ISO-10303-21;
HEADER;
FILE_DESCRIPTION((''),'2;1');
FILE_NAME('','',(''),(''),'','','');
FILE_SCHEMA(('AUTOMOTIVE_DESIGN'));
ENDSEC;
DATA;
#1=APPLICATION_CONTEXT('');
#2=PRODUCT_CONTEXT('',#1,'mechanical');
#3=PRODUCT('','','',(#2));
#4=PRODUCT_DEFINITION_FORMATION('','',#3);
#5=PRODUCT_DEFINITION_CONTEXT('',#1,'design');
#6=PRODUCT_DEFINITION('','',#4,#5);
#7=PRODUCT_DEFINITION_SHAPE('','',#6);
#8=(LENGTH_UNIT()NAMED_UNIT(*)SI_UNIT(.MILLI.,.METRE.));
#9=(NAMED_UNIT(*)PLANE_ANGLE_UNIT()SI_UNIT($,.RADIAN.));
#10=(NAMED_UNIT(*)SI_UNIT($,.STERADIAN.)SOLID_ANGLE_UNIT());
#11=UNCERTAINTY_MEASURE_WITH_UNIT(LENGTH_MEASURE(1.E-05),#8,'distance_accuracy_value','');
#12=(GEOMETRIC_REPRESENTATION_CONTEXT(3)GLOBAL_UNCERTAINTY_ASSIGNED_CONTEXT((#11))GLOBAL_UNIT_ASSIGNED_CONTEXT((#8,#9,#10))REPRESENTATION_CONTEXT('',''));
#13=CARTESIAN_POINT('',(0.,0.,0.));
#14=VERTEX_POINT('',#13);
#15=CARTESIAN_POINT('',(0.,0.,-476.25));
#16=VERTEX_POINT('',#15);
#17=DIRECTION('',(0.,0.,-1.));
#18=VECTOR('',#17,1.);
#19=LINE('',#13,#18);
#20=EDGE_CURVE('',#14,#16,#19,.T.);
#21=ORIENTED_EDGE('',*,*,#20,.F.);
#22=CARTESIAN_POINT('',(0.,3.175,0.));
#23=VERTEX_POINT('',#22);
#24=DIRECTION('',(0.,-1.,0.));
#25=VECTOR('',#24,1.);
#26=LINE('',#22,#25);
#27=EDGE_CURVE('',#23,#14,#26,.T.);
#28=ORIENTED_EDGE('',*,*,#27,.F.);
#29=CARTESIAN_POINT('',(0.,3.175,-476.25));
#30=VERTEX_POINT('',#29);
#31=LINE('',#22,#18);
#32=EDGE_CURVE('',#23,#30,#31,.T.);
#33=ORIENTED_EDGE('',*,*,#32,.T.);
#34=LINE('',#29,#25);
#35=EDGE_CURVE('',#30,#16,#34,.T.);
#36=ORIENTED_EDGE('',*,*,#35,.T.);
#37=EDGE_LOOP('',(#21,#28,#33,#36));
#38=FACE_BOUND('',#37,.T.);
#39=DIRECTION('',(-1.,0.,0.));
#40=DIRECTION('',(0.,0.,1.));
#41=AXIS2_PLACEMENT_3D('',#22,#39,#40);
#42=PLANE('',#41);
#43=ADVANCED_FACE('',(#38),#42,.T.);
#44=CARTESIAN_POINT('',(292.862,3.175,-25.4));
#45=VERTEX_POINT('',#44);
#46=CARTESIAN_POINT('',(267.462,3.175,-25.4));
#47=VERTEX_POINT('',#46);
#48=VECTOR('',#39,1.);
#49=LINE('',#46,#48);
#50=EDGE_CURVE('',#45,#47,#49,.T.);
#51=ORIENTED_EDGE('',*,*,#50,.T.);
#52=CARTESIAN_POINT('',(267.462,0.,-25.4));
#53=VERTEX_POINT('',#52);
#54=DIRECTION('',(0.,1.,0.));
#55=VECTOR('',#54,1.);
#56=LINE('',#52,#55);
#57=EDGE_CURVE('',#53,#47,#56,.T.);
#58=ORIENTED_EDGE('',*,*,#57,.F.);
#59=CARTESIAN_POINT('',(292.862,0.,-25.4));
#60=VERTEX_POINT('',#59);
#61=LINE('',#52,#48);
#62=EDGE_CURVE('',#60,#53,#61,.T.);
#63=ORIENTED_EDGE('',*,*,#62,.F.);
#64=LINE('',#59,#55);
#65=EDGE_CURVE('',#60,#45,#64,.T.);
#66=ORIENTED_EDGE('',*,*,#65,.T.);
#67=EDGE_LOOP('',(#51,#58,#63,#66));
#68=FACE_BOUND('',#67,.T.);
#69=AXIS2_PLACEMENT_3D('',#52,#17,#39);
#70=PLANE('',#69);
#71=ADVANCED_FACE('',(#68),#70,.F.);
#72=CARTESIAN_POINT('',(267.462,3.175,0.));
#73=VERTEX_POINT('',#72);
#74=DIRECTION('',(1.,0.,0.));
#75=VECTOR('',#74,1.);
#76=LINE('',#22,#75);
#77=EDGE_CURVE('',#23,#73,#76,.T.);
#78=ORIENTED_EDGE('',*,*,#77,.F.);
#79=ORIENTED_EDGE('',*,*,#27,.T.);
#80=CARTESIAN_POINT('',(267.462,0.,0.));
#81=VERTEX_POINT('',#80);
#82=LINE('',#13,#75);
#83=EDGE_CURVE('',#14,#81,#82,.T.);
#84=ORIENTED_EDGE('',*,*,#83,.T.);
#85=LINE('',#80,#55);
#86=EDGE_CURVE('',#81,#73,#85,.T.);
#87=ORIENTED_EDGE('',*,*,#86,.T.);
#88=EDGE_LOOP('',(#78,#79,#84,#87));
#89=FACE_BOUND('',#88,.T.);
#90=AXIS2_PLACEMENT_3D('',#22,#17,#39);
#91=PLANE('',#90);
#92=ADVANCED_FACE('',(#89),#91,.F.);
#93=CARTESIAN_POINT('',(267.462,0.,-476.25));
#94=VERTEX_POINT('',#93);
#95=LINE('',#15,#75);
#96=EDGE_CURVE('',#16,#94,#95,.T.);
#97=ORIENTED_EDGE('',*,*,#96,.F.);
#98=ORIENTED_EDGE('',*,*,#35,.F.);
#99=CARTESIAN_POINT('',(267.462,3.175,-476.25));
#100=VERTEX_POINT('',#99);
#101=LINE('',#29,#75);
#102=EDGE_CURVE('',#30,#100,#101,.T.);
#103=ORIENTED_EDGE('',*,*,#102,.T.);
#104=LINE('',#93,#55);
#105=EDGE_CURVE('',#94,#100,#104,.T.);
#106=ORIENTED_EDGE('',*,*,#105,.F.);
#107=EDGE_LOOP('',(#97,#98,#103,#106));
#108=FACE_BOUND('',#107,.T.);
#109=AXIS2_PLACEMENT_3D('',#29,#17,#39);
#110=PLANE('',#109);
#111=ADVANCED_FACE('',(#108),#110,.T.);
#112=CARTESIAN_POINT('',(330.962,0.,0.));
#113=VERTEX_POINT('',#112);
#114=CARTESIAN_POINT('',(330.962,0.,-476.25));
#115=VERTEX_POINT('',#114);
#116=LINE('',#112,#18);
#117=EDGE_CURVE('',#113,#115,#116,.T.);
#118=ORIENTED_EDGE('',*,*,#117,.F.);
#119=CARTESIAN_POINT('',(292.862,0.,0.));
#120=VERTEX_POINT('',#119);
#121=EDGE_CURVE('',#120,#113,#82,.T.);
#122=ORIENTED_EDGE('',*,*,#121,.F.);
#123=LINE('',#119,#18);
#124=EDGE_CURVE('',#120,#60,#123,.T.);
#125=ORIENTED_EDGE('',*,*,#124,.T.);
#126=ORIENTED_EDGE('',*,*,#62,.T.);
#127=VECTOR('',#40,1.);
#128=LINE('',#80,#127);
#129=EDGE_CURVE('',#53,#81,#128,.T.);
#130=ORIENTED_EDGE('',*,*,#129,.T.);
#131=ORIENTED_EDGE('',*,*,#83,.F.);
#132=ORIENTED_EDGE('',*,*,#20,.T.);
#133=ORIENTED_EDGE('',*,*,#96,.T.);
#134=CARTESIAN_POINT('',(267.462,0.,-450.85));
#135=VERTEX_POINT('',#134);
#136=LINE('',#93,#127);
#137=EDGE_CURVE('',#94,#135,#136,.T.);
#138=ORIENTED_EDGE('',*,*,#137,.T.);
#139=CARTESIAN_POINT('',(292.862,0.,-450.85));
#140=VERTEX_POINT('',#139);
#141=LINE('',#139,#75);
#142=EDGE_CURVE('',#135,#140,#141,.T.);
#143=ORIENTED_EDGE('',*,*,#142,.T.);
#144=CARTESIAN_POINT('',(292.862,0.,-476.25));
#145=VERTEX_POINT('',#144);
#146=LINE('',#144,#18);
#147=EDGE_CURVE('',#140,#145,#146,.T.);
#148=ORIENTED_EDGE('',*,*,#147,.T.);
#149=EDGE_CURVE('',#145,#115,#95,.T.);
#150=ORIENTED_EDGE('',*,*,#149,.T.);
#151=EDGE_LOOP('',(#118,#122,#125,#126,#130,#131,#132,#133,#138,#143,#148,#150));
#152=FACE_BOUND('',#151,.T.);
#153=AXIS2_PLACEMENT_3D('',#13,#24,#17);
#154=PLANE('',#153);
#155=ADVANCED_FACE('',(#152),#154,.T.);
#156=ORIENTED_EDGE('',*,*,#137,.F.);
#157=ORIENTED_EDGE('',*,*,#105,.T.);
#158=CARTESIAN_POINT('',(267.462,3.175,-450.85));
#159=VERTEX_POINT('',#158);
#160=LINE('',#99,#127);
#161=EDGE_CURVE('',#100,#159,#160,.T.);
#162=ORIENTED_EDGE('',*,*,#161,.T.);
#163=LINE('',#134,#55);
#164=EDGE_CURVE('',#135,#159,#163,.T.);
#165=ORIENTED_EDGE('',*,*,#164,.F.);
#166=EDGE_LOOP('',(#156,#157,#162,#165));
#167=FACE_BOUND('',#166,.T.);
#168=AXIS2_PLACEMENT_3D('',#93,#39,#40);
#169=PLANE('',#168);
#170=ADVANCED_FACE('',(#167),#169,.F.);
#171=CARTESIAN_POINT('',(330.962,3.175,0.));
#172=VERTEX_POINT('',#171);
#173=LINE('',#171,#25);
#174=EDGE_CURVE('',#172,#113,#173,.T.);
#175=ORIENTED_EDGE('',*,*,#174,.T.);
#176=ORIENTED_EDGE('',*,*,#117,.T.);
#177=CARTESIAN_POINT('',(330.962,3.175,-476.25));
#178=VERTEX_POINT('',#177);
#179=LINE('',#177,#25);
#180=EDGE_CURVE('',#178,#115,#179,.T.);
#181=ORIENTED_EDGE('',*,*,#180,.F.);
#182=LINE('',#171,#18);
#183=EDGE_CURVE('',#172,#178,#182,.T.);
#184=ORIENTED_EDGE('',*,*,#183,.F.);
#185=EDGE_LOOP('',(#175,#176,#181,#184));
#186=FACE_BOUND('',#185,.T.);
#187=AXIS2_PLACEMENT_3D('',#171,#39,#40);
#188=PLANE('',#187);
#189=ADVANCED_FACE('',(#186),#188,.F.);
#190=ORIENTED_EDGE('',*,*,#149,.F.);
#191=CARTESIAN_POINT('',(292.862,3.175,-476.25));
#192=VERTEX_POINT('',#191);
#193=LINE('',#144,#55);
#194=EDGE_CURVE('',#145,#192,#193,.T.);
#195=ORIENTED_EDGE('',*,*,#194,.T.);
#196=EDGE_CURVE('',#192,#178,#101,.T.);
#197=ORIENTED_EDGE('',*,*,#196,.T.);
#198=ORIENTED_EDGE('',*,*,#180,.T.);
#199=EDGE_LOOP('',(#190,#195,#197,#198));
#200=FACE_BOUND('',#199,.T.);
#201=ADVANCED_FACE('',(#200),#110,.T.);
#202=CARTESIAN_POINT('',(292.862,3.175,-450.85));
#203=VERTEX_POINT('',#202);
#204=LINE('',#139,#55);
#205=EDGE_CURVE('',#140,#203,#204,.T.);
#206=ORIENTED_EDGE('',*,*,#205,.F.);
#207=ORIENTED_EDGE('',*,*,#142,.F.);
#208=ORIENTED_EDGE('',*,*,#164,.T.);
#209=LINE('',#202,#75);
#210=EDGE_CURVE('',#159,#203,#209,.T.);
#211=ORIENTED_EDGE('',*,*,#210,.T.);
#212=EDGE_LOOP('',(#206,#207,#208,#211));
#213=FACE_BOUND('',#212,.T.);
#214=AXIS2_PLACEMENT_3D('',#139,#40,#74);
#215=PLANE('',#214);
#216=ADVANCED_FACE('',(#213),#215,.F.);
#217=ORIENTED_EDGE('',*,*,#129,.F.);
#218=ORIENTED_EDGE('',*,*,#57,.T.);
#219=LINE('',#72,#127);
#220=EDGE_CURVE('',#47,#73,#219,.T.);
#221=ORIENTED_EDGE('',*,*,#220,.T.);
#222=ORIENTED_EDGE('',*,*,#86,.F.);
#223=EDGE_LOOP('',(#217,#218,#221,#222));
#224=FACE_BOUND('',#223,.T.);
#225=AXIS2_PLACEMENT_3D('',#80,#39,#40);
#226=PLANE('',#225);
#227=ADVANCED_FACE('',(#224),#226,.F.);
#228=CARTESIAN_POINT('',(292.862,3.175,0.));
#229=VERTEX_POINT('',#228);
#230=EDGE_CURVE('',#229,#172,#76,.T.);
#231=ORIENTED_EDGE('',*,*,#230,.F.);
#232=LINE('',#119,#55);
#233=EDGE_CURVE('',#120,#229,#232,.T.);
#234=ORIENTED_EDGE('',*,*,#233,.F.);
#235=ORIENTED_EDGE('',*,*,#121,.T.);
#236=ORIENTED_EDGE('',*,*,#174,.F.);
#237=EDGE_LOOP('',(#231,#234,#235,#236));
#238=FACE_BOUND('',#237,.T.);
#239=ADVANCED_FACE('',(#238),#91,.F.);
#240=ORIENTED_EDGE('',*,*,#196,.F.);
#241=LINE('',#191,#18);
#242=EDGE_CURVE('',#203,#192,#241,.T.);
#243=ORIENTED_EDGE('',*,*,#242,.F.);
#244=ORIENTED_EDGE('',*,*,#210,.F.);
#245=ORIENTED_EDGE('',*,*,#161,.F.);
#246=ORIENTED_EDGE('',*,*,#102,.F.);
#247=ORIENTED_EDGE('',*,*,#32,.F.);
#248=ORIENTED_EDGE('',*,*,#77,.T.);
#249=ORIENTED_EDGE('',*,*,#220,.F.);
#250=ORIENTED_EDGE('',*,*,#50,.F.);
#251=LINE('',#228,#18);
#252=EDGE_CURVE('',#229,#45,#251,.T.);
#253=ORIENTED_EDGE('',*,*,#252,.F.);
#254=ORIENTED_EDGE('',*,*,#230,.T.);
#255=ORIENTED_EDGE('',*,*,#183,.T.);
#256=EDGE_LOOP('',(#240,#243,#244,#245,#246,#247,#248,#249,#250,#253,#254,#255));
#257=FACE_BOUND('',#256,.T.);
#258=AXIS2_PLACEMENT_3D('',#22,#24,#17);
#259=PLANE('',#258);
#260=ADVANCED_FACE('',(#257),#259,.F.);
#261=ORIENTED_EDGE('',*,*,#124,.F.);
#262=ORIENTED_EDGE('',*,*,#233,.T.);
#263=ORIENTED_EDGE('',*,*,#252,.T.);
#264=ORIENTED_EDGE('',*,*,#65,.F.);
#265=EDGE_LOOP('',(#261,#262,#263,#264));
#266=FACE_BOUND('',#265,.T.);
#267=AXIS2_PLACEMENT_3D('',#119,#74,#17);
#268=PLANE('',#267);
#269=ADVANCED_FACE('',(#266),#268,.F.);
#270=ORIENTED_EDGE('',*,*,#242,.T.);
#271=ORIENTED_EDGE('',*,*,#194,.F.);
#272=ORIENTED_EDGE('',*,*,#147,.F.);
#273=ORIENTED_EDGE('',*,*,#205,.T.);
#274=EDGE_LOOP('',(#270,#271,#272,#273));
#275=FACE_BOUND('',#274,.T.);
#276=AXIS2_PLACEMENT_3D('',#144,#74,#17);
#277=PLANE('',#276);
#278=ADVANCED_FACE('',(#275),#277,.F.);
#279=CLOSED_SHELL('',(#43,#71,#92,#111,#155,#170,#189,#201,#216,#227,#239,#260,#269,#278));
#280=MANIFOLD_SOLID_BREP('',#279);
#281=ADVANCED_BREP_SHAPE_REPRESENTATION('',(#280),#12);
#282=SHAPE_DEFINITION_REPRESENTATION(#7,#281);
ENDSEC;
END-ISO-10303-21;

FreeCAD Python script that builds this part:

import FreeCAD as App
import Part
import Sketcher

V = App.Vector
Q = App.Units.Quantity


def add_polygon(sketch, points):
    """Adds a closed chain of lines whose ends are joined by coincident constraints."""
    first, n = sketch.GeometryCount, len(points)
    for a, b in zip(points, points[1:] + points[:1]):
        sketch.addGeometry(Part.LineSegment(App.Vector(*a, 0), App.Vector(*b, 0)), False)
    for i in range(n):
        sketch.addConstraint(Sketcher.Constraint("Coincident", first + i, 2, first + (i + 1) % n, 1))

doc = App.newDocument("Part")
body = doc.addObject("PartDesign::Body", "Body")

sketch1 = body.newObject("Sketcher::SketchObject", "Sketch")
sketch1.AttachmentSupport = (doc.getObject("XZ_Plane"), [""])
sketch1.MapMode = "FlatFace"
add_polygon(sketch1, [(0, -476), (0, 0), (331, 0), (331, -476)])
sketch1.addConstraint([
    Sketcher.Constraint("Vertical", 0),
    Sketcher.Constraint("Horizontal", 1),
    Sketcher.Constraint("Vertical", 2),
    Sketcher.Constraint("Horizontal", 3),
    Sketcher.Constraint("Coincident", 0, 2, -1, 1),
    Sketcher.Constraint("DistanceX", 1, 1, 1, 2, Q("13.03 in")),
    Sketcher.Constraint("DistanceY", 0, 1, 0, 2, Q("18.75 in")),
])
pad1 = body.newObject("PartDesign::Pad", "Pad")
pad1.Profile = sketch1
pad1.Length = Q("0.125 in")
pad1.Reversed = True

sketch2 = body.newObject("Sketcher::SketchObject", "Sketch001")
sketch2.AttachmentSupport = (doc.getObject("XZ_Plane"), [""])
sketch2.MapMode = "FlatFace"
sketch2.AttachmentOffset = App.Placement(V(0, 0, -0.125 * 25.4), App.Rotation())
add_polygon(sketch2, [(267, -25), (267, 0), (293, 0), (293, -25)])
add_polygon(sketch2, [(267, -476), (267, -451), (293, -451), (293, -476)])
sketch2.addConstraint([
    Sketcher.Constraint("Vertical", 0),
    Sketcher.Constraint("Horizontal", 1),
    Sketcher.Constraint("Vertical", 2),
    Sketcher.Constraint("Horizontal", 3),
    Sketcher.Constraint("Vertical", 4),
    Sketcher.Constraint("Horizontal", 5),
    Sketcher.Constraint("Vertical", 6),
    Sketcher.Constraint("Horizontal", 7),
    Sketcher.Constraint("PointOnObject", 0, 2, -1),
    Sketcher.Constraint("Vertical", 3, 2, 4, 2),
    Sketcher.Constraint("Vertical", 2, 2, 5, 2),
    Sketcher.Constraint("Equal", 7, 0),
    Sketcher.Constraint("Equal", 2, 4),
    Sketcher.Constraint("DistanceX", 1, 1, 1, 2, Q("1 in")),
    Sketcher.Constraint("DistanceX", -1, 1, 0, 2, Q("10.53 in")),
    Sketcher.Constraint("DistanceY", 4, 2, -1, 1, Q("17.75 in")),
])
pocket1 = body.newObject("PartDesign::Pocket", "Pocket")
pocket1.Profile = sketch2
pocket1.Type = "ThroughAll"
pocket1.Reversed = True

doc.recompute()
